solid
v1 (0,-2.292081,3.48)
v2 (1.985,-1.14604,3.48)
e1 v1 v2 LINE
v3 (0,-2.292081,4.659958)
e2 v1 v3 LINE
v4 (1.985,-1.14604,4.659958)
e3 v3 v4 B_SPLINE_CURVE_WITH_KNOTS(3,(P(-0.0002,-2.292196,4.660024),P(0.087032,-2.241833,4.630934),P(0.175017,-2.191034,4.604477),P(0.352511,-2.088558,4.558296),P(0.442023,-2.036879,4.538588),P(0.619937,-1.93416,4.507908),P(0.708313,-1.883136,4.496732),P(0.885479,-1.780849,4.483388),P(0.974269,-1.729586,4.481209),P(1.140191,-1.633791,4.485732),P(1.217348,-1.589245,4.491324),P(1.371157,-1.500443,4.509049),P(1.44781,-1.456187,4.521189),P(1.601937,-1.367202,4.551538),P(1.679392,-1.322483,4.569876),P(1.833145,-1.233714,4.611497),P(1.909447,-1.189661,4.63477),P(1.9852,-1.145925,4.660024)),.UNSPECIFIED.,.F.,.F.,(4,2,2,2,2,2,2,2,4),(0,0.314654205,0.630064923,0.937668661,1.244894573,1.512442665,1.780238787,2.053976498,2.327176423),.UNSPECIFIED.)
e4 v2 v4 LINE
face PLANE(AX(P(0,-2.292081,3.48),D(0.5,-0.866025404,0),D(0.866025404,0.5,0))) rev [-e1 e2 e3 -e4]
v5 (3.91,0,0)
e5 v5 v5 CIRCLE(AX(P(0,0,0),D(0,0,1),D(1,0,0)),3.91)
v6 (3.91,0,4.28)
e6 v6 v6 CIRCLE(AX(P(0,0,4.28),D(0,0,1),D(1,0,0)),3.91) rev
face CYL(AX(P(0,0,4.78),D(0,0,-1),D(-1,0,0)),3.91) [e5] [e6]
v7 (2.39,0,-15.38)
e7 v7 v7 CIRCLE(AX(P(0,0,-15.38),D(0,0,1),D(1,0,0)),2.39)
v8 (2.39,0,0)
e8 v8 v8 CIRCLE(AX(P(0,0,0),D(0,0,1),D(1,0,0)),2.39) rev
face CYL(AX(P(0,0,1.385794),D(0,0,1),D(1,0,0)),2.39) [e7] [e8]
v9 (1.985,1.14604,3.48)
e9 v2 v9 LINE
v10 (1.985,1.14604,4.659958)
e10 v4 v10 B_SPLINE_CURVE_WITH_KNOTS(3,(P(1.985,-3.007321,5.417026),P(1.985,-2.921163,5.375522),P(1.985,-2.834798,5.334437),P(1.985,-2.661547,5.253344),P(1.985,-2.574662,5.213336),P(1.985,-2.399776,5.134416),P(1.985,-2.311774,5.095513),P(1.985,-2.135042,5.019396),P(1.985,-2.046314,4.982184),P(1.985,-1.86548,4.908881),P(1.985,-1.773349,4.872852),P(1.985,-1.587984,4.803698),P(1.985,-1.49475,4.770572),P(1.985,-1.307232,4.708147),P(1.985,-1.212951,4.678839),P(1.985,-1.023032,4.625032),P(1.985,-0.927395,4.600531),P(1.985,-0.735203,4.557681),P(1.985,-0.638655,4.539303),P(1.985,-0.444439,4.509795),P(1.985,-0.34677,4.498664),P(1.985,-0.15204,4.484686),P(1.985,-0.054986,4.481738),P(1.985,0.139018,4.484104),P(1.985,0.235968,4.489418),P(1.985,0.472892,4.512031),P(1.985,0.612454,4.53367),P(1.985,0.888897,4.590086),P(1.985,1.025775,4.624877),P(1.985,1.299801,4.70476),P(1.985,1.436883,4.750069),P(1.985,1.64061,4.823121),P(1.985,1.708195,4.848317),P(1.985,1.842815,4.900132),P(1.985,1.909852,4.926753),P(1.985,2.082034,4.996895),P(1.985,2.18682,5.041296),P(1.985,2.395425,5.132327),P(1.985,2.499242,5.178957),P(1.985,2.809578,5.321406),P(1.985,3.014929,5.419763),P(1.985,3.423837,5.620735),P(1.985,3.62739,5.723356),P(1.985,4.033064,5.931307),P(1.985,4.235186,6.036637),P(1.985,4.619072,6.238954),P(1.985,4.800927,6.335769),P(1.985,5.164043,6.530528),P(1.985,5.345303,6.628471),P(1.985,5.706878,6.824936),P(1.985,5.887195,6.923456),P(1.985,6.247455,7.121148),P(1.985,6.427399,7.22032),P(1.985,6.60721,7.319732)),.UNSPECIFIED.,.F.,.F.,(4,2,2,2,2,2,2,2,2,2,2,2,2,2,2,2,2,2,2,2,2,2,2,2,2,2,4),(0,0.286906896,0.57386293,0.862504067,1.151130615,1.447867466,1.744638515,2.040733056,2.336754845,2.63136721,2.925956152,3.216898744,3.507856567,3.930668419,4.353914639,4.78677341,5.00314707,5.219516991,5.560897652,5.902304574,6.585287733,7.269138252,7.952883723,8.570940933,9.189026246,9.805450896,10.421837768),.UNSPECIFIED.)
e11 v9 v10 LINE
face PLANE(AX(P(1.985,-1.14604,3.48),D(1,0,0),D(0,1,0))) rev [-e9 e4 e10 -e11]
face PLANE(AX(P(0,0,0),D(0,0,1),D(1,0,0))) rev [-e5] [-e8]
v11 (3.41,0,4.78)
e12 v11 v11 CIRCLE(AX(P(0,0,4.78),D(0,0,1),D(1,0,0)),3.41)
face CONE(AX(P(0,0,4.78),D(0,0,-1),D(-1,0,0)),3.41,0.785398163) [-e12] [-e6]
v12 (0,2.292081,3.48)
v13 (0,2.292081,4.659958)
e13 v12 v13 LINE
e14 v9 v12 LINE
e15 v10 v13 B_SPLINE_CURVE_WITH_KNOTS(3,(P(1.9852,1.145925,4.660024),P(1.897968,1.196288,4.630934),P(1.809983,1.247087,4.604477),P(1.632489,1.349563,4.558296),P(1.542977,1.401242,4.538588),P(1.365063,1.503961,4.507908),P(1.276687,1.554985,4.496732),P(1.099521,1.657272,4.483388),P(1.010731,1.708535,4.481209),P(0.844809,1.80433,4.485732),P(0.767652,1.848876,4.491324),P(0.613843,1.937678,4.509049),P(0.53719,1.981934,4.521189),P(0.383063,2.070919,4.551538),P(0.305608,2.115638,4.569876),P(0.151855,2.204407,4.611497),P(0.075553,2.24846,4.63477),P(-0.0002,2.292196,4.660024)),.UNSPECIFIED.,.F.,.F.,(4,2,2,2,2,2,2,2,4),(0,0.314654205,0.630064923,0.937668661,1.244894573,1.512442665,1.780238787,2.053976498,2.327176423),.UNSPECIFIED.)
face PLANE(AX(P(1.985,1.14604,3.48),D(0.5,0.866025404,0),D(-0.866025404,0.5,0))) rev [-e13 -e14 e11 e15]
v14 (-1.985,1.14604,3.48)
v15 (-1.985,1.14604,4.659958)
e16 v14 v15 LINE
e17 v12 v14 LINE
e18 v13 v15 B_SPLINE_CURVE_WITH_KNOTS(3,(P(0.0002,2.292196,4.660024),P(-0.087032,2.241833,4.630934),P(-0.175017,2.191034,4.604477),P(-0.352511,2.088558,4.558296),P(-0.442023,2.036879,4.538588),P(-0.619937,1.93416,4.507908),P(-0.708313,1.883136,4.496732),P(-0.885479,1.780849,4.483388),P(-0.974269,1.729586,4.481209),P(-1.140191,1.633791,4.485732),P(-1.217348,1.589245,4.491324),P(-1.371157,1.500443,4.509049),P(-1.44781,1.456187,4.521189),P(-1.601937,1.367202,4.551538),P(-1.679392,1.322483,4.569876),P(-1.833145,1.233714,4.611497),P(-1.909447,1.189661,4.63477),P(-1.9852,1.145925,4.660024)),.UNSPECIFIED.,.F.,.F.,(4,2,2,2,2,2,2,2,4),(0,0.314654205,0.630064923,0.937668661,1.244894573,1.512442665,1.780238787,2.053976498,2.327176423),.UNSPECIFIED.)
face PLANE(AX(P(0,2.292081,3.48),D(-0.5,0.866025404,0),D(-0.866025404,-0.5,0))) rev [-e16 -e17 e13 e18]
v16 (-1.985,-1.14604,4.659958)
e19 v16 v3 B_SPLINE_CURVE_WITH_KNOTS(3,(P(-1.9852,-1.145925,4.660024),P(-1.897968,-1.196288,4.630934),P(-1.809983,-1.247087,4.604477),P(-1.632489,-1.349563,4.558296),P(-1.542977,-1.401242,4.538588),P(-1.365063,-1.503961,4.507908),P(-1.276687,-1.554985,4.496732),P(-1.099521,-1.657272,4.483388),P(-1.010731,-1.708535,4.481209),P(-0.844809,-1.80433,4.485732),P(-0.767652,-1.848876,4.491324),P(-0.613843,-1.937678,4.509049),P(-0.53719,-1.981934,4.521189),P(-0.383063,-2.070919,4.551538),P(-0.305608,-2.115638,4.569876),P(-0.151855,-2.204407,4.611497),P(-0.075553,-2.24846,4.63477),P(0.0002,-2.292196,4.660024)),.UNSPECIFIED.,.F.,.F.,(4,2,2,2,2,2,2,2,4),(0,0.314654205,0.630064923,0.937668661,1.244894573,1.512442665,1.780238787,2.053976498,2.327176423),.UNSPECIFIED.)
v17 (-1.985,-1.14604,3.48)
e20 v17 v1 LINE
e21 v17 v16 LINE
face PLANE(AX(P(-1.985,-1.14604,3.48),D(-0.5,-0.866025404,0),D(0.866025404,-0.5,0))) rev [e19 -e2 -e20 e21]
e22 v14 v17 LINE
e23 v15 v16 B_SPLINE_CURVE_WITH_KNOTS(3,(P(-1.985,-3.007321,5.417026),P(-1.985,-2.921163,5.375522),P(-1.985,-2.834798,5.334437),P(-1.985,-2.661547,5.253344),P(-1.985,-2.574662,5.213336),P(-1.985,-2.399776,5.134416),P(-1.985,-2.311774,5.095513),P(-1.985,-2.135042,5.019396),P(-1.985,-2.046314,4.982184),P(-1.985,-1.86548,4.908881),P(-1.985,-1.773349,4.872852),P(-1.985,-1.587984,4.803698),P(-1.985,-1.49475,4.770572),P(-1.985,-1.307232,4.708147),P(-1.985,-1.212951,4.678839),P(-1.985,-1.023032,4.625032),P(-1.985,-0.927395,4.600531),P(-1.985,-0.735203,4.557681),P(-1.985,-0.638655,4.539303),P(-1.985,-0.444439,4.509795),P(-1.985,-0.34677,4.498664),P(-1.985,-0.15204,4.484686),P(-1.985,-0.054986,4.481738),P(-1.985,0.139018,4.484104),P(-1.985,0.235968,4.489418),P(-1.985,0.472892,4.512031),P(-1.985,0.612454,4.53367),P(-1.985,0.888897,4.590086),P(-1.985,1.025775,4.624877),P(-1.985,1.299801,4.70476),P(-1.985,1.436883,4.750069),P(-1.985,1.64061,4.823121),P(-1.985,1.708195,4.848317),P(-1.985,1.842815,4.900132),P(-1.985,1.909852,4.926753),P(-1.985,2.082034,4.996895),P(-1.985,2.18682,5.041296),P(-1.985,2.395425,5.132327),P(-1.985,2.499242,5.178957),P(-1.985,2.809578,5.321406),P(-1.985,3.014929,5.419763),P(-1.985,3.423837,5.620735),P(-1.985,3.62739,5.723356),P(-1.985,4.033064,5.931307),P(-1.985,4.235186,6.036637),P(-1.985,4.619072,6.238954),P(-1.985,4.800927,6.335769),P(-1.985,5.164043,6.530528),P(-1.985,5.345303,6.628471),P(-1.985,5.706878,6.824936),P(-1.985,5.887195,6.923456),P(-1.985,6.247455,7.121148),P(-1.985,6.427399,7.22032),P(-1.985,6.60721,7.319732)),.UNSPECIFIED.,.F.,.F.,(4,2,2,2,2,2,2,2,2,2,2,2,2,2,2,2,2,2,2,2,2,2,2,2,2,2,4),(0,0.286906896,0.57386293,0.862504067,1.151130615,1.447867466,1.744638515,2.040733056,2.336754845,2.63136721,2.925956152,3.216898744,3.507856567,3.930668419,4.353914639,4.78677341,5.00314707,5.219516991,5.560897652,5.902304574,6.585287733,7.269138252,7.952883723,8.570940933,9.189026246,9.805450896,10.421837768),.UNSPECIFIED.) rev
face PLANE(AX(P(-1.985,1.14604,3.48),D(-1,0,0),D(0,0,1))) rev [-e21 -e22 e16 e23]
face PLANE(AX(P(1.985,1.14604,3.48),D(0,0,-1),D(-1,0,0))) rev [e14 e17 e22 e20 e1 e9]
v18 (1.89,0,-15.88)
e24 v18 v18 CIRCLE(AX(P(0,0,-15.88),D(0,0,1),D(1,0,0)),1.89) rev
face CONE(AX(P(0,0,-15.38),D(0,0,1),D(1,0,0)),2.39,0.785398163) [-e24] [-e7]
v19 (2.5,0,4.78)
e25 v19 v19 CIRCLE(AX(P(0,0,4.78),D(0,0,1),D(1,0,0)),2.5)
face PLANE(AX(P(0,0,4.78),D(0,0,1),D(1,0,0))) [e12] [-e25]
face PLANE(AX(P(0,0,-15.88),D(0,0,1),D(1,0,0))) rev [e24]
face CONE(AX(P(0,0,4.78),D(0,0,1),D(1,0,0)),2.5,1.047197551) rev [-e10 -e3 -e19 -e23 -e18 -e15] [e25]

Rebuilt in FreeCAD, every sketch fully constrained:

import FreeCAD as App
import Part
import Sketcher
Q = App.Units.Quantity


def edges_at(feature, points):
    """Names of the edges that pass closest to the given points."""
    edges = feature.Shape.Edges
    near = lambda p: min(range(len(edges)), key=lambda i: edges[i].distToShape(Part.Vertex(*p))[0])
    return sorted({f"Edge{near(p) + 1}" for p in points})


def faces_at(feature, points):
    """Names of the faces that lie closest to the given points."""
    faces = feature.Shape.Faces
    near = lambda p: min(range(len(faces)), key=lambda i: faces[i].distToShape(Part.Vertex(*p))[0])
    return sorted({f"Face{near(p) + 1}" for p in points})


def add_polygon(sketch, points):
    """Adds a closed chain of lines whose ends are joined by coincident constraints."""
    first, n = sketch.GeometryCount, len(points)
    for a, b in zip(points, points[1:] + points[:1]):
        sketch.addGeometry(Part.LineSegment(App.Vector(*a, 0), App.Vector(*b, 0)), False)
    for i in range(n):
        sketch.addConstraint(Sketcher.Constraint("Coincident", first + i, 2, first + (i + 1) % n, 1))

doc = App.newDocument("Part")
body = doc.addObject("PartDesign::Body", "Body")

# Sketch on XY plane
sketch1 = body.newObject("Sketcher::SketchObject", "Sketch")
sketch1.AttachmentSupport = (doc.getObject("XY_Plane"), [""])
sketch1.MapMode = "FlatFace"
sketch1.addGeometry(Part.Circle(App.Vector(0, 0, 0), App.Vector(0, 0, 1), 3.9), False)
sketch1.addConstraint([
    Sketcher.Constraint("Coincident", 0, 3, -1, 1),
    Sketcher.Constraint("Diameter", 0, 7.82),
])
pad1 = body.newObject("PartDesign::Pad", "Pad")
pad1.Profile = sketch1
pad1.Length = 4.78

# Sketch on YZ plane
sketch2 = body.newObject("Sketcher::SketchObject", "Sketch001")
sketch2.AttachmentSupport = (doc.getObject("YZ_Plane"), [""])
sketch2.MapMode = "FlatFace"
add_polygon(sketch2, [(2.4, 4.8), (0, 4.8), (0, -15.9), (2.4, -15.9)])  # lines 0-3
sketch2.addConstraint([
    Sketcher.Constraint("Horizontal", 0),
    Sketcher.Constraint("Vertical", 1),
    Sketcher.Constraint("Horizontal", 2),
    Sketcher.Constraint("Vertical", 3),
    Sketcher.Constraint("PointOnObject", 0, 2, -2),
    Sketcher.Constraint("DistanceX", 0, 2, 0, 1, 2.39),
    Sketcher.Constraint("DistanceY", 1, 2, 1, 1, 20.66),
    Sketcher.Constraint("DistanceY", -1, 1, 0, 2, 4.78),
])
revolution = body.newObject("PartDesign::Revolution", "Revolution")
revolution.Profile = sketch2
revolution.ReferenceAxis = (sketch2, ["V_Axis"])
revolution.Angle = 360

# Sketch on XY plane
sketch3 = body.newObject("Sketcher::SketchObject", "Sketch002")
sketch3.AttachmentSupport = (doc.getObject("XY_Plane"), [""])
sketch3.MapMode = "FlatFace"
sketch3.AttachmentOffset = App.Placement(App.Vector(0, 0, 4.78), App.Rotation())
add_polygon(sketch3, [(0, 2.3), (-2, 1.1), (-2, -1.1), (0, -2.3), (2, -1.1), (2, 1.1)])  # lines 0-5
sketch3.addConstraint([
    Sketcher.Constraint("Vertical", 1),
    Sketcher.Constraint("Vertical", 4),
    Sketcher.Constraint("Symmetric", 0, 2, 3, 2, -1, 1),
    Sketcher.Constraint("Symmetric", 2, 2, 5, 2, -1, 1),
    Sketcher.Constraint("PointOnObject", 2, 2, -2),
    Sketcher.Constraint("Parallel", 2, 5),
    Sketcher.Constraint("Horizontal", 1, 2, 3, 2),
    Sketcher.Constraint("Angle", 0, Q("-150 deg")),
    Sketcher.Constraint("DistanceX", 1, 2, 3, 2, 3.97),
    Sketcher.Constraint("DistanceY", 1, 2, 1, 1, 2.292081),
])
pocket1 = body.newObject("PartDesign::Pocket", "Pocket")
pocket1.Profile = sketch3
pocket1.Length = 1.3
body2 = doc.addObject("PartDesign::Body", "Body001")

# Sketch on XY plane
sketch4 = body2.newObject("Sketcher::SketchObject", "Sketch003")
sketch4.AttachmentSupport = (doc.getObject("XY_Plane001"), [""])
sketch4.MapMode = "FlatFace"
sketch4.AttachmentOffset = App.Placement(App.Vector(0, 0, 4.78), App.Rotation())
sketch4.addGeometry(Part.Circle(App.Vector(0, 0, 0), App.Vector(0, 0, 1), 2.5), False)
sketch4.addConstraint([
    Sketcher.Constraint("Coincident", 0, 3, -1, 1),
    Sketcher.Constraint("Diameter", 0, 5.0),
])
pad2 = body2.newObject("PartDesign::Pad", "Pad001")
pad2.Profile = sketch4
pad2.Length = 1.3
pad2.Reversed = True
doc.recompute()

datumplane = body2.newObject("PartDesign::Plane", "DatumPlane")
datumplane.AttachmentSupport = (doc.getObject("XY_Plane001"), [""])
datumplane.MapMode = "FlatFace"
datumplane.AttachmentOffset = App.Placement(App.Vector(0, 0, 4.78), App.Rotation())
draft = body2.newObject("PartDesign::Draft", "Draft")
draft.Base = (pad2, faces_at(pad2, [(-2.5, 0, 4.13)]))
draft.NeutralPlane = (datumplane, [""])
draft.Angle = 60
draft.Reversed = True
doc.recompute()

boolean = body.newObject("PartDesign::Boolean", "Boolean")
boolean.Type = "Cut"
boolean.addObjects([body2])
doc.recompute()

chamfer = body.newObject("PartDesign::Chamfer", "Chamfer")
chamfer.Base = (boolean, edges_at(boolean, [(-3.91, 0, 4.78), (-2.39, 0, -15.88)]))
chamfer.Size = 0.5

doc.recompute()
